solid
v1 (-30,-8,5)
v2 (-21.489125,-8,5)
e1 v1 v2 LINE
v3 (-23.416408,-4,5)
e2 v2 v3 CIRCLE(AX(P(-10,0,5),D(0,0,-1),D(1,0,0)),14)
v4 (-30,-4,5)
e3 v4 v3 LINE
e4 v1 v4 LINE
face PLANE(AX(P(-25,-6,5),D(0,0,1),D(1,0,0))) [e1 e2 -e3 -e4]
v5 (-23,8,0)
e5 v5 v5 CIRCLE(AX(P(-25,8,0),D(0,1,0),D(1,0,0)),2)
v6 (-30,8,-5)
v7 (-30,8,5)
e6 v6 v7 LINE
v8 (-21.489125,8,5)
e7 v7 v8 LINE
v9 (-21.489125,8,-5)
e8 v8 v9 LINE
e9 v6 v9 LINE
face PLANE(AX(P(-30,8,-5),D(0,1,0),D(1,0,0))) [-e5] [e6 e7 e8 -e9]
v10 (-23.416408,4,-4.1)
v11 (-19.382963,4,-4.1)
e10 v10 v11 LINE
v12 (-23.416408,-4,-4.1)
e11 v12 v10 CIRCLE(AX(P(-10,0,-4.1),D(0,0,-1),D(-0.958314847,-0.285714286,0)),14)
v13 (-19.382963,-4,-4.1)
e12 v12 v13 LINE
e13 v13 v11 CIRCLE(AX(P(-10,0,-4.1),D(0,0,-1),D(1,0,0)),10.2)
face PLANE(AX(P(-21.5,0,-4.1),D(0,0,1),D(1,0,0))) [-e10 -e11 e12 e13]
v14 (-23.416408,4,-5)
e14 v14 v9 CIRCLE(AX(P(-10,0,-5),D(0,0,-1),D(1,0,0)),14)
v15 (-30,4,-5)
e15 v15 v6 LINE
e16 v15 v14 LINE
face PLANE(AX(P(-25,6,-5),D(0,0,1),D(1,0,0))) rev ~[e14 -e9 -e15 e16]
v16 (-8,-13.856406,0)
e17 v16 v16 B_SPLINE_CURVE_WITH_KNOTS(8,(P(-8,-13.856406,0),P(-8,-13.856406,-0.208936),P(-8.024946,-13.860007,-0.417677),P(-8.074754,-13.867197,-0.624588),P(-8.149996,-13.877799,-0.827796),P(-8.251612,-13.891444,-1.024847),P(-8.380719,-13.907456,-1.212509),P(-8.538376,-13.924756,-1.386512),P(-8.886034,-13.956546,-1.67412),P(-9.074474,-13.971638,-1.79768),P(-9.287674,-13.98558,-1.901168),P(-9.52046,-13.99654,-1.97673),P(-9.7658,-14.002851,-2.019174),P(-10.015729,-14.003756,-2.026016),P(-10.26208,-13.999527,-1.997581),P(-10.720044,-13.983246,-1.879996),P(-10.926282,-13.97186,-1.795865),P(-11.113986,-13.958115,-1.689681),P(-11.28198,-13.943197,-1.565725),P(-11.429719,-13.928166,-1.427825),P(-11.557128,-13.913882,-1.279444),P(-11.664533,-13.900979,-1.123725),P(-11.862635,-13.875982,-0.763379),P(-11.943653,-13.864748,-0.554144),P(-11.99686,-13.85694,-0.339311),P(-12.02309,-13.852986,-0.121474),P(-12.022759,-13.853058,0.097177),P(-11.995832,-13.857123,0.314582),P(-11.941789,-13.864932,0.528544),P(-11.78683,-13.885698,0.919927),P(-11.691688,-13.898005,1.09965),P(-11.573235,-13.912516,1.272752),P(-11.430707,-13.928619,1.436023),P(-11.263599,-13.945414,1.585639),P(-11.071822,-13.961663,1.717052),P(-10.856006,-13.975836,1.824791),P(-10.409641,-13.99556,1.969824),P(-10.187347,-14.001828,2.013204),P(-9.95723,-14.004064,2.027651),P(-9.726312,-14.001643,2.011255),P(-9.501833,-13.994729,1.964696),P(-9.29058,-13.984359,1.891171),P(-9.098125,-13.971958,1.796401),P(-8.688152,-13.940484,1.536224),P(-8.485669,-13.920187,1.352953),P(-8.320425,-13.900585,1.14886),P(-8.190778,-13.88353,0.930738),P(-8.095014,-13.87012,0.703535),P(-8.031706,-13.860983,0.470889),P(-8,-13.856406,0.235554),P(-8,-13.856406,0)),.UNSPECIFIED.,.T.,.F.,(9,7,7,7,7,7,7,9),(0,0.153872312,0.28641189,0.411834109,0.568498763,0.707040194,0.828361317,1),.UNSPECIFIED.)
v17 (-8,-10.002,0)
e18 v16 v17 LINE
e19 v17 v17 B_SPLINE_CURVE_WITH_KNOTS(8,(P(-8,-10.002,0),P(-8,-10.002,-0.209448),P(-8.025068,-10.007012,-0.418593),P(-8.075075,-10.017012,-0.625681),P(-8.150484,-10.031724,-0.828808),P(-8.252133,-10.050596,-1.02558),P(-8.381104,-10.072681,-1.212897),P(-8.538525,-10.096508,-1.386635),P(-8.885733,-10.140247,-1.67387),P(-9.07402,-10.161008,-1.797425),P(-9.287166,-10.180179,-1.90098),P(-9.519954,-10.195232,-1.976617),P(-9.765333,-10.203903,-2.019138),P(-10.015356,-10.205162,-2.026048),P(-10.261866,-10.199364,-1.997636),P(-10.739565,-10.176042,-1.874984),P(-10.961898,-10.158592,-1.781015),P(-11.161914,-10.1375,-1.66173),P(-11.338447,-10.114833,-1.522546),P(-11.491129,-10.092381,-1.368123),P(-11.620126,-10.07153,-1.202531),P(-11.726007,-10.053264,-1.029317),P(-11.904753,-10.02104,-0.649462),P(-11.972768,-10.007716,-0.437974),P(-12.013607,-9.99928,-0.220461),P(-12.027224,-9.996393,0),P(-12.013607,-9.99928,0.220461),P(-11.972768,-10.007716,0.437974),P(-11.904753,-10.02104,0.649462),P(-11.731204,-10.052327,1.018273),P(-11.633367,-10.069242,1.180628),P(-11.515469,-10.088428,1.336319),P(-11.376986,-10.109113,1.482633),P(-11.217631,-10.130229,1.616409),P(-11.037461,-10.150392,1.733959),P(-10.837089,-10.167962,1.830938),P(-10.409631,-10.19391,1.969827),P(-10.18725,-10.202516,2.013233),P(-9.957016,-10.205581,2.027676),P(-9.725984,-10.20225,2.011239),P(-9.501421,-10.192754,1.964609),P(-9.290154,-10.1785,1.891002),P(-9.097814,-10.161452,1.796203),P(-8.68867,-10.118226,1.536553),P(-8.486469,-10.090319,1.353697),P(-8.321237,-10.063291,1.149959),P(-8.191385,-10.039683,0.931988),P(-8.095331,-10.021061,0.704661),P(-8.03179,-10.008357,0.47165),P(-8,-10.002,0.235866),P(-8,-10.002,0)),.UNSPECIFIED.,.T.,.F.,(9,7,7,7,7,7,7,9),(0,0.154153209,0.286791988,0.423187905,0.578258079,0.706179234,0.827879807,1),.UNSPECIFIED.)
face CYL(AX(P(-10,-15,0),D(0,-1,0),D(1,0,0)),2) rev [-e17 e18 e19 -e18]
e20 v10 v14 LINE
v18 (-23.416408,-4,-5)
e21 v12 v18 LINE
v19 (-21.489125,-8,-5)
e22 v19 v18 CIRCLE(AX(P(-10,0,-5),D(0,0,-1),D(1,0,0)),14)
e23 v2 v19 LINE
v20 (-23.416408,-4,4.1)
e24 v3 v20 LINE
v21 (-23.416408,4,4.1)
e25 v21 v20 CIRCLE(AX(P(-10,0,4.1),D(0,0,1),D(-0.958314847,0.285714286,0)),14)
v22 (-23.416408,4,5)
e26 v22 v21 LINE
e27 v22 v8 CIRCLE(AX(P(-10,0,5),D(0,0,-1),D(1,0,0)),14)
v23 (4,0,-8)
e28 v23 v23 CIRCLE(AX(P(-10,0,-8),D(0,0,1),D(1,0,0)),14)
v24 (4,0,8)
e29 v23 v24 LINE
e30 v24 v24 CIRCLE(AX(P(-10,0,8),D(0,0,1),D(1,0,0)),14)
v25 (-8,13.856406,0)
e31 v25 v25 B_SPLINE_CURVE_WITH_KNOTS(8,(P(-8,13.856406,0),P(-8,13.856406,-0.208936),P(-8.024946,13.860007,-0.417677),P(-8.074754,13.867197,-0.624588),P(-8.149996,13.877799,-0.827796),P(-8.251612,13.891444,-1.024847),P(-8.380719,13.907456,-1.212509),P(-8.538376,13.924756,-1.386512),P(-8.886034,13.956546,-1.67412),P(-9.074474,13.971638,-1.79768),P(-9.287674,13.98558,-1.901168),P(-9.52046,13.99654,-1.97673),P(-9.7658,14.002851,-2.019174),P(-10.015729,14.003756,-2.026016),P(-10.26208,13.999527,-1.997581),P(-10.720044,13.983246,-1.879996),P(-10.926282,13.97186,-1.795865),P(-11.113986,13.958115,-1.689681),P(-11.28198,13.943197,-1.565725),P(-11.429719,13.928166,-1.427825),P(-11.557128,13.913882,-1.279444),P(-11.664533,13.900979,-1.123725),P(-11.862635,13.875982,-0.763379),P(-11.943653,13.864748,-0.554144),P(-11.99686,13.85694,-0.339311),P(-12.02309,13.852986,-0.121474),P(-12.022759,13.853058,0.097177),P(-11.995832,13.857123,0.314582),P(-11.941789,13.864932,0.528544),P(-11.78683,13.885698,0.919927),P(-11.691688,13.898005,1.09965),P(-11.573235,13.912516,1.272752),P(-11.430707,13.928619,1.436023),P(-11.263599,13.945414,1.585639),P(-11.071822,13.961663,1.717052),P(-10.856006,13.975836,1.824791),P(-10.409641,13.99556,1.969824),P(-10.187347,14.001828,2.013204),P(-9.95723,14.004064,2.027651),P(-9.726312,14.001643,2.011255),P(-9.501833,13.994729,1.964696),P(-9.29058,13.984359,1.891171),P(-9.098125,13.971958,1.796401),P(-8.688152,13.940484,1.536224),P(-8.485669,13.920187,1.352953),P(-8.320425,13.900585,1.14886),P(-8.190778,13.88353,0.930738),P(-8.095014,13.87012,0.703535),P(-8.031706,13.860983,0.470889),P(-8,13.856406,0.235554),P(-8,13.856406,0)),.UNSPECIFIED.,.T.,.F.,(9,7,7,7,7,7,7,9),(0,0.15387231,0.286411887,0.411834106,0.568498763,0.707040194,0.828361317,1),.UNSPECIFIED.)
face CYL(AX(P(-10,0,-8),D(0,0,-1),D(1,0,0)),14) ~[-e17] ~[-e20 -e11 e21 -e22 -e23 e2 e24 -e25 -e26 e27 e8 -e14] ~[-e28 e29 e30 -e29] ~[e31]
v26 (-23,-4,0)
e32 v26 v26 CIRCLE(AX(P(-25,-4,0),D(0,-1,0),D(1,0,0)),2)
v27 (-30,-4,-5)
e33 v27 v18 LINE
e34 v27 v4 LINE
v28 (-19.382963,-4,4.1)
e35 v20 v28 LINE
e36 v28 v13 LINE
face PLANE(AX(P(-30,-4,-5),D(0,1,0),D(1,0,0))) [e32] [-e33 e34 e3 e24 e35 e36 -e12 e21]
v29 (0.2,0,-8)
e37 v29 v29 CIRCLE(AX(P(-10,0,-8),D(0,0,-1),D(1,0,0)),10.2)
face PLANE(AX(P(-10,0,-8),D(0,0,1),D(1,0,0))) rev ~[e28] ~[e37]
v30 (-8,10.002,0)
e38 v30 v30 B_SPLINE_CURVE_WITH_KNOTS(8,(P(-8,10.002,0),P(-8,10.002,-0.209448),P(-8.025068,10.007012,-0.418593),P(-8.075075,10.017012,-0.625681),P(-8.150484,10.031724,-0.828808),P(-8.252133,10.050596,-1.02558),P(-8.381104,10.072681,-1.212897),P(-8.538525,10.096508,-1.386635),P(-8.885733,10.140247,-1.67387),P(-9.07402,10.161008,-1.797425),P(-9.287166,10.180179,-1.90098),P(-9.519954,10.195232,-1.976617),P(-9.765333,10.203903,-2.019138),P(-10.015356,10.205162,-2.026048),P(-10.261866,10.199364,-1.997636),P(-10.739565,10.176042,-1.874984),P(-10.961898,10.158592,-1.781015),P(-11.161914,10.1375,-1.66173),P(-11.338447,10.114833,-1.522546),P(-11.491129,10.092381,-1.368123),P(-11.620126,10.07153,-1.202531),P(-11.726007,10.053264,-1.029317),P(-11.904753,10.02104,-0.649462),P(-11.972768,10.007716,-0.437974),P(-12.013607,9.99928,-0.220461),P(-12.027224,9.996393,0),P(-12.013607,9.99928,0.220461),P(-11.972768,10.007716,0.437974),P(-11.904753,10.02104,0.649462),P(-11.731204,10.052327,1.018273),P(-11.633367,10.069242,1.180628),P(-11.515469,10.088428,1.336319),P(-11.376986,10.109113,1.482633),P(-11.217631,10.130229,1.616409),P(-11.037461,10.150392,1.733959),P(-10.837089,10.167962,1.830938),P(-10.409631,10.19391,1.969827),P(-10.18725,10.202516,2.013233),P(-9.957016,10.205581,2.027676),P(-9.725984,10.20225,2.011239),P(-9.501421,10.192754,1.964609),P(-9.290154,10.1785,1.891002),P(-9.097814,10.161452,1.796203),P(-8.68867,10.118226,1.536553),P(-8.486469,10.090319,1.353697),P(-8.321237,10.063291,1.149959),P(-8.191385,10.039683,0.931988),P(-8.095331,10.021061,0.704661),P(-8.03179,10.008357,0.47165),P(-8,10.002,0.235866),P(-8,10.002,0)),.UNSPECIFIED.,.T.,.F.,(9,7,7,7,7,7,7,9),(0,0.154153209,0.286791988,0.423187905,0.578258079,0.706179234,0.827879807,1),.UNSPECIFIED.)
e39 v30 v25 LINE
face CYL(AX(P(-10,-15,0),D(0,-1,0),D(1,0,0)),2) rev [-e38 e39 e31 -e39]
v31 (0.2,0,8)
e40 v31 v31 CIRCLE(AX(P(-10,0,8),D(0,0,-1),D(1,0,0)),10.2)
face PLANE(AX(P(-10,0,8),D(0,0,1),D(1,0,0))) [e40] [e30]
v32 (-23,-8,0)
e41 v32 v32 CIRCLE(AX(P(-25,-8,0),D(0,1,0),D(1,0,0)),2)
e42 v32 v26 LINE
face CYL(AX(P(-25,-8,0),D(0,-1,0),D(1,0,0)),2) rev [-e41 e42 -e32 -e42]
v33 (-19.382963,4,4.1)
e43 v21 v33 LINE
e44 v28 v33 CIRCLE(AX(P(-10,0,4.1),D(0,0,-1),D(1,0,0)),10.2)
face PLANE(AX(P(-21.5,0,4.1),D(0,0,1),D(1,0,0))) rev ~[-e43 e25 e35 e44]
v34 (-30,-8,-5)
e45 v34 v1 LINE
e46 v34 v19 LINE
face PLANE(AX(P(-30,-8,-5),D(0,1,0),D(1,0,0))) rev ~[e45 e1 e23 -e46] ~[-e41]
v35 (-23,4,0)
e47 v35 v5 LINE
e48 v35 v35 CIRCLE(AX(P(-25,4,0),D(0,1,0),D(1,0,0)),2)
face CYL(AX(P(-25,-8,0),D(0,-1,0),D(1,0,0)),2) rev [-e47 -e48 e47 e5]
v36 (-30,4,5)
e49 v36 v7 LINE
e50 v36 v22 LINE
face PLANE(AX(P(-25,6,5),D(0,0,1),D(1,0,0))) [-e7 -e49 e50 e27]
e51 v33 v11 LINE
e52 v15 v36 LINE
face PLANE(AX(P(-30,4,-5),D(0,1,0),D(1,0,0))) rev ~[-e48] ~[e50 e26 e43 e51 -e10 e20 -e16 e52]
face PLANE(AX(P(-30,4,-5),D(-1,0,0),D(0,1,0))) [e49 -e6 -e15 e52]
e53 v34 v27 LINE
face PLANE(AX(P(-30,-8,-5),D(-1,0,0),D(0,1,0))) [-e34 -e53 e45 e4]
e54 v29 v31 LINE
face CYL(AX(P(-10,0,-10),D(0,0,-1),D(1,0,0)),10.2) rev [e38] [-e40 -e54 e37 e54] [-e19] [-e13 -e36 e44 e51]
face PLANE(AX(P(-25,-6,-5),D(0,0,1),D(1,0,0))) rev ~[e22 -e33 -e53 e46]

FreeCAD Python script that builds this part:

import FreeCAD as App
import Part
import Sketcher

V = App.Vector
Q = App.Units.Quantity


def add_polygon(sketch, points):
    """Adds a closed chain of lines whose ends are joined by coincident constraints."""
    first, n = sketch.GeometryCount, len(points)
    for a, b in zip(points, points[1:] + points[:1]):
        sketch.addGeometry(Part.LineSegment(App.Vector(*a, 0), App.Vector(*b, 0)), False)
    for i in range(n):
        sketch.addConstraint(Sketcher.Constraint("Coincident", first + i, 2, first + (i + 1) % n, 1))

doc = App.newDocument("Part")
body = doc.addObject("PartDesign::Body", "Body")

# Sketch on XY plane
sketch1 = body.newObject("Sketcher::SketchObject", "Sketch")
sketch1.AttachmentSupport = (doc.getObject("XY_Plane"), [""])
sketch1.MapMode = "FlatFace"
sketch1.addGeometry(Part.Circle(V(0, 0, 0), V(0, 0, 1), 2), False)
sketch1.addConstraint([
    Sketcher.Constraint("Coincident", 0, 3, -1, 1),
    Sketcher.Constraint("Diameter", 0, Q("4 mm")),
])
pad1 = body.newObject("PartDesign::Pad", "Pad")
pad1.Profile = sketch1
pad1.Length = 16
body2 = doc.addObject("PartDesign::Body", "Body001")
doc.recompute()

body.Placement = App.Placement(V(0, 0, 0), App.Rotation(V(1, 0, 0), 270))
boolean = body2.newObject("PartDesign::Boolean", "Boolean")
boolean.Type = "Fuse"
boolean.addObjects([body])
body3 = doc.addObject("PartDesign::Body", "Body002")
doc.recompute()

body2.Placement = App.Placement(V(-25, -8, 0), App.Rotation(V(0, 0, 1), 0))
boolean2 = body3.newObject("PartDesign::Boolean", "Boolean001")
boolean2.Type = "Fuse"
boolean2.addObjects([body2])
body4 = doc.addObject("PartDesign::Body", "Body003")

# Sketch on XY plane
sketch2 = body4.newObject("Sketcher::SketchObject", "Sketch001")
sketch2.AttachmentSupport = (doc.getObject("XY_Plane003"), [""])
sketch2.MapMode = "FlatFace"
sketch2.AttachmentOffset = App.Placement(V(0, 0, -4.1), App.Rotation())
add_polygon(sketch2, [(-24, 4), (-24, -4), (-19, -4), (-19, 4)])  # lines 0-3
sketch2.addConstraint([
    Sketcher.Constraint("Vertical", 0),
    Sketcher.Constraint("Horizontal", 1),
    Sketcher.Constraint("Vertical", 2),
    Sketcher.Constraint("Horizontal", 3),
    Sketcher.Constraint("DistanceX", 1, 1, 1, 2, Q("5 mm")),
    Sketcher.Constraint("DistanceY", 0, 2, 0, 1, Q("8 mm")),
    Sketcher.Constraint("DistanceX", 0, 2, -1, 1, Q("24 mm")),
    Sketcher.Constraint("DistanceY", 0, 2, -1, 1, Q("4 mm")),
])
pad2 = body4.newObject("PartDesign::Pad", "Pad001")
pad2.Profile = sketch2
pad2.Length = 8.2
body5 = doc.addObject("PartDesign::Body", "Body004")

# Sketch on XY plane
sketch3 = body5.newObject("Sketcher::SketchObject", "Sketch002")
sketch3.AttachmentSupport = (doc.getObject("XY_Plane004"), [""])
sketch3.MapMode = "FlatFace"
sketch3.addGeometry(Part.Circle(V(0, 0, 0), V(0, 0, 1), 2), False)
sketch3.addConstraint([
    Sketcher.Constraint("Coincident", 0, 3, -1, 1),
    Sketcher.Constraint("Diameter", 0, Q("4 mm")),
])
pad3 = body5.newObject("PartDesign::Pad", "Pad002")
pad3.Profile = sketch3
pad3.Length = 30
body6 = doc.addObject("PartDesign::Body", "Body005")
doc.recompute()

body5.Placement = App.Placement(V(0, 0, 0), App.Rotation(V(1, 0, 0), 270))
boolean3 = body6.newObject("PartDesign::Boolean", "Boolean002")
boolean3.Type = "Fuse"
boolean3.addObjects([body5])
body7 = doc.addObject("PartDesign::Body", "Body006")
doc.recompute()

body6.Placement = App.Placement(V(-10, -15, 0), App.Rotation(V(0, 0, 1), 0))
boolean4 = body7.newObject("PartDesign::Boolean", "Boolean003")
boolean4.Type = "Fuse"
boolean4.addObjects([body6])
body8 = doc.addObject("PartDesign::Body", "Body007")
body8.AllowCompound = True

# Sketch on XY plane
sketch4 = body8.newObject("Sketcher::SketchObject", "Sketch003")
sketch4.AttachmentSupport = (doc.getObject("XY_Plane007"), [""])
sketch4.MapMode = "FlatFace"
sketch4.AttachmentOffset = App.Placement(V(0, 0, -10), App.Rotation())
sketch4.addGeometry(Part.Circle(V(-10, 0, 0), V(0, 0, 1), 10), False)
sketch4.addConstraint([
    Sketcher.Constraint("PointOnObject", 0, 3, -1),
    Sketcher.Constraint("Diameter", 0, Q("20.4 mm")),
    Sketcher.Constraint("DistanceX", 0, 3, -1, 1, Q("10 mm")),
])
pad4 = body8.newObject("PartDesign::Pad", "Pad003")
pad4.Profile = sketch4
pad4.Length = 28
doc.recompute()

boolean5 = body8.newObject("PartDesign::Boolean", "Boolean004")
boolean5.Type = "Fuse"
boolean5.addObjects([body3])
doc.recompute()

boolean6 = body8.newObject("PartDesign::Boolean", "Boolean005")
boolean6.Type = "Fuse"
boolean6.addObjects([body4])
doc.recompute()

boolean7 = body8.newObject("PartDesign::Boolean", "Boolean006")
boolean7.Type = "Fuse"
boolean7.addObjects([body7])
body9 = doc.addObject("PartDesign::Body", "Body008")

# Sketch on XY plane
sketch5 = body9.newObject("Sketcher::SketchObject", "Sketch004")
sketch5.AttachmentSupport = (doc.getObject("XY_Plane008"), [""])
sketch5.MapMode = "FlatFace"
sketch5.AttachmentOffset = App.Placement(V(0, 0, -5), App.Rotation())
add_polygon(sketch5, [(-30, -4), (-30, -8), (-20, -8), (-20, -4)])  # lines 0-3
sketch5.addConstraint([
    Sketcher.Constraint("Vertical", 0),
    Sketcher.Constraint("Horizontal", 1),
    Sketcher.Constraint("Vertical", 2),
    Sketcher.Constraint("Horizontal", 3),
    Sketcher.Constraint("DistanceX", 1, 1, 1, 2, Q("10 mm")),
    Sketcher.Constraint("DistanceY", 0, 2, 0, 1, Q("4 mm")),
    Sketcher.Constraint("DistanceX", 0, 2, -1, 1, Q("30 mm")),
    Sketcher.Constraint("DistanceY", 0, 2, -1, 1, Q("8 mm")),
])
pad5 = body9.newObject("PartDesign::Pad", "Pad004")
pad5.Profile = sketch5
pad5.Length = 10
body10 = doc.addObject("PartDesign::Body", "Body009")

# Sketch on XY plane
sketch6 = body10.newObject("Sketcher::SketchObject", "Sketch005")
sketch6.AttachmentSupport = (doc.getObject("XY_Plane009"), [""])
sketch6.MapMode = "FlatFace"
sketch6.AttachmentOffset = App.Placement(V(0, 0, -5), App.Rotation())
add_polygon(sketch6, [(-30, 8), (-30, 4), (-20, 4), (-20, 8)])  # lines 0-3
sketch6.addConstraint([
    Sketcher.Constraint("Vertical", 0),
    Sketcher.Constraint("Horizontal", 1),
    Sketcher.Constraint("Vertical", 2),
    Sketcher.Constraint("Horizontal", 3),
    Sketcher.Constraint("DistanceX", 1, 1, 1, 2, Q("10 mm")),
    Sketcher.Constraint("DistanceY", 0, 2, 0, 1, Q("4 mm")),
    Sketcher.Constraint("DistanceX", 0, 2, -1, 1, Q("30 mm")),
    Sketcher.Constraint("DistanceY", -1, 1, 0, 2, Q("4 mm")),
])
pad6 = body10.newObject("PartDesign::Pad", "Pad005")
pad6.Profile = sketch6
pad6.Length = 10
body11 = doc.addObject("PartDesign::Body", "Body010")

# Sketch on XY plane
sketch7 = body11.newObject("Sketcher::SketchObject", "Sketch006")
sketch7.AttachmentSupport = (doc.getObject("XY_Plane010"), [""])
sketch7.MapMode = "FlatFace"
sketch7.AttachmentOffset = App.Placement(V(0, 0, -8), App.Rotation())
sketch7.addGeometry(Part.Circle(V(-10, 0, 0), V(0, 0, 1), 14), False)
sketch7.addConstraint([
    Sketcher.Constraint("PointOnObject", 0, 3, -1),
    Sketcher.Constraint("Diameter", 0, Q("28 mm")),
    Sketcher.Constraint("DistanceX", 0, 3, -1, 1, Q("10 mm")),
])
pad7 = body11.newObject("PartDesign::Pad", "Pad006")
pad7.Profile = sketch7
pad7.Length = 16
doc.recompute()

boolean8 = body11.newObject("PartDesign::Boolean", "Boolean007")
boolean8.Type = "Fuse"
boolean8.addObjects([body9])
doc.recompute()

boolean9 = body11.newObject("PartDesign::Boolean", "Boolean008")
boolean9.Type = "Fuse"
boolean9.addObjects([body10])
doc.recompute()

boolean10 = body11.newObject("PartDesign::Boolean", "Boolean009")
boolean10.Type = "Cut"
boolean10.addObjects([body8])

doc.recompute()
